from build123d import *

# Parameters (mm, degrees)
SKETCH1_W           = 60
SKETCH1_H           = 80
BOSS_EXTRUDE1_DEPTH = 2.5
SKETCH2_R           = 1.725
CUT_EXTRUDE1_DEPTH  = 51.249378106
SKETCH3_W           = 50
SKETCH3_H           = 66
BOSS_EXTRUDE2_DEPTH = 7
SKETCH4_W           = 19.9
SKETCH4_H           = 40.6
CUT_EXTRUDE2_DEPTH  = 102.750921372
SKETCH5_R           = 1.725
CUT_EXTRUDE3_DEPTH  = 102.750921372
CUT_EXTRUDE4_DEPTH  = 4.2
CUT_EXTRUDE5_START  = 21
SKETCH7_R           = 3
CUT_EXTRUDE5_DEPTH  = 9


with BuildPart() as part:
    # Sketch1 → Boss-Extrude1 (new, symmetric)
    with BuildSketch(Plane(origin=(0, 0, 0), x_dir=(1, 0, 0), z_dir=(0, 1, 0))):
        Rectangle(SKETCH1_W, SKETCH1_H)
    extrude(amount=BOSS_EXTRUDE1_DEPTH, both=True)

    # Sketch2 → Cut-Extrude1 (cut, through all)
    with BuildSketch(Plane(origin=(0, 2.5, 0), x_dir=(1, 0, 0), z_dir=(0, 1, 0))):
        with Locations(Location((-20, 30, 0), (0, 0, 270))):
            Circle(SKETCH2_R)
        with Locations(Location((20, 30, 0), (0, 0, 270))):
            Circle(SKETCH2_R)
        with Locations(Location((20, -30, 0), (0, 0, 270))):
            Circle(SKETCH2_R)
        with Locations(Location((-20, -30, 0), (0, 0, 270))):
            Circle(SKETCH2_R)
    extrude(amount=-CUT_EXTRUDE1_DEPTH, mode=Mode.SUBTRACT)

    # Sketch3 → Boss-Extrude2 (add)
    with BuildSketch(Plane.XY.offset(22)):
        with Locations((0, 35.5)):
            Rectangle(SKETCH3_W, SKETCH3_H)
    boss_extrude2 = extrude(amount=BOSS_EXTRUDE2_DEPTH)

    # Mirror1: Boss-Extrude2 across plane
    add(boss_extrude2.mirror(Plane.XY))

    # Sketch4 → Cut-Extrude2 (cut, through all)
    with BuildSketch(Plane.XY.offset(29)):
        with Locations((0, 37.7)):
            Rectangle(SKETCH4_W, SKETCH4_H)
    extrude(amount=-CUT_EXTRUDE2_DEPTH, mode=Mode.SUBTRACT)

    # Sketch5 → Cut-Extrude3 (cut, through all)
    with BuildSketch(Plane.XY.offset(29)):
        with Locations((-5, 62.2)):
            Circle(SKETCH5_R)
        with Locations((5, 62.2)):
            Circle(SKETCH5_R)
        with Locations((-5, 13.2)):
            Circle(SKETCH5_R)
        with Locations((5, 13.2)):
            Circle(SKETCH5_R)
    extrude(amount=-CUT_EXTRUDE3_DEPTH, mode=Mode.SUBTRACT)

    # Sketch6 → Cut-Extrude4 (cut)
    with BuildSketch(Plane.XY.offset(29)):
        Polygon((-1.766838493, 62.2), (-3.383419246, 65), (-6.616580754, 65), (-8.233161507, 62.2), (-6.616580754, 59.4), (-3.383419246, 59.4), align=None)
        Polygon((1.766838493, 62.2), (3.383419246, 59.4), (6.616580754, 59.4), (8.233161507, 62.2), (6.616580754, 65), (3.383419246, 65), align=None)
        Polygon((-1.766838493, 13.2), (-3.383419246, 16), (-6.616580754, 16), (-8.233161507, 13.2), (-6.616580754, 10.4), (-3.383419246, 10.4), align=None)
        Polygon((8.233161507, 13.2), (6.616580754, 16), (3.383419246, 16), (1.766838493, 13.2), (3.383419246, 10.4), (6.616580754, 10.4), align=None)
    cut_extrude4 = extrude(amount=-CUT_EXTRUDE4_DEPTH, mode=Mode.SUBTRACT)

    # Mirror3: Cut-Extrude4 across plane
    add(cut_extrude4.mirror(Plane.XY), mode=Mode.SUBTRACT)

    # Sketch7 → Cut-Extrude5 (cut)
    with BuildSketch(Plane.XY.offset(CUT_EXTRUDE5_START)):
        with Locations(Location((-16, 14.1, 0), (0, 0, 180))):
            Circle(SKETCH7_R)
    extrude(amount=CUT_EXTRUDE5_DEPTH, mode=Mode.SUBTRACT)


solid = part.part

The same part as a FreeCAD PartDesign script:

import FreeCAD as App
import Part
import Sketcher

V = App.Vector
Q = App.Units.Quantity


def add_polygon(sketch, points):
    """Adds a closed chain of lines whose ends are joined by coincident constraints."""
    first, n = sketch.GeometryCount, len(points)
    for a, b in zip(points, points[1:] + points[:1]):
        sketch.addGeometry(Part.LineSegment(App.Vector(*a, 0), App.Vector(*b, 0)), False)
    for i in range(n):
        sketch.addConstraint(Sketcher.Constraint("Coincident", first + i, 2, first + (i + 1) % n, 1))

doc = App.newDocument("Part")
body = doc.addObject("PartDesign::Body", "Body")

# Sketch on XZ plane
sketch1 = doc.addObject("Sketcher::SketchObject", "Sketch")
body.addObject(sketch1)
sketch1.AttachmentSupport = (doc.XZ_Plane, [""])
sketch1.MapMode = "FlatFace"
add_polygon(sketch1, [(-30, -40), (-30, 40), (30, 40), (30, -40)])  # lines 0-3
sketch1.addConstraint([
    Sketcher.Constraint("Vertical", 0),
    Sketcher.Constraint("Horizontal", 1),
    Sketcher.Constraint("Vertical", 2),
    Sketcher.Constraint("Horizontal", 3),
    Sketcher.Constraint("Symmetric", 0, 2, 2, 2, -1, 1),
    Sketcher.Constraint("DistanceX", 1, 1, 1, 2, 60.0),
    Sketcher.Constraint("DistanceY", 0, 1, 0, 2, 80.0),
])
pad1 = doc.addObject("PartDesign::Pad", "Pad")
body.addObject(pad1)
pad1.Profile = sketch1
pad1.Length = 5
pad1.Midplane = True

# Sketch on XZ plane
sketch2 = doc.addObject("Sketcher::SketchObject", "Sketch001")
body.addObject(sketch2)
sketch2.AttachmentSupport = (doc.XZ_Plane, [""])
sketch2.MapMode = "FlatFace"
sketch2.AttachmentOffset = App.Placement(V(0, 0, -2.5), App.Rotation())
sketch2.addGeometry([
    Part.Circle(V(-20, -30, 0), V(0, 0, 1), 1.7),
    Part.Circle(V(20, -30, 0), V(0, 0, 1), 1.7),
    Part.Circle(V(20, 30, 0), V(0, 0, 1), 1.7),
    Part.Circle(V(-20, 30, 0), V(0, 0, 1), 1.7),
], False)
sketch2.addConstraint([
    Sketcher.Constraint("Equal", 0, 1),
    Sketcher.Constraint("Equal", 1, 2),
    Sketcher.Constraint("Equal", 2, 3),
    Sketcher.Constraint("Symmetric", 0, 3, 2, 3, -1, 1),
    Sketcher.Constraint("Symmetric", 1, 3, 3, 3, -1, 1),
    Sketcher.Constraint("Symmetric", 0, 3, 1, 3, -2),
    Sketcher.Constraint("Diameter", 0, 3.45),
    Sketcher.Constraint("DistanceX", 0, 3, -1, 1, 20.0),
    Sketcher.Constraint("DistanceY", 0, 3, -1, 1, 30.0),
])
pocket1 = doc.addObject("PartDesign::Pocket", "Pocket")
body.addObject(pocket1)
pocket1.Profile = sketch2
pocket1.Type = "ThroughAll"
pocket1.Reversed = True

# Sketch on XY plane
sketch3 = doc.addObject("Sketcher::SketchObject", "Sketch002")
body.addObject(sketch3)
sketch3.AttachmentSupport = (doc.XY_Plane, [""])
sketch3.MapMode = "FlatFace"
sketch3.AttachmentOffset = App.Placement(V(0, 0, 22), App.Rotation())
add_polygon(sketch3, [(-25, 68), (-25, 2), (25, 2), (25, 68)])  # lines 0-3
sketch3.addConstraint([
    Sketcher.Constraint("Vertical", 0),
    Sketcher.Constraint("Horizontal", 1),
    Sketcher.Constraint("Vertical", 2),
    Sketcher.Constraint("Horizontal", 3),
    Sketcher.Constraint("DistanceX", 1, 1, 1, 2, 50.0),
    Sketcher.Constraint("DistanceY", 0, 2, 0, 1, 66.0),
    Sketcher.Constraint("DistanceX", 0, 2, -1, 1, 25.0),
    Sketcher.Constraint("DistanceY", -1, 1, 0, 2, 2.5),
])
pad2 = doc.addObject("PartDesign::Pad", "Pad001")
body.addObject(pad2)
pad2.Profile = sketch3
pad2.Length = 7
doc.recompute()

mirrored = doc.addObject("PartDesign::Mirrored", "Mirrored")
body.addObject(mirrored)
mirrored.Originals = [pad2]
mirrored.MirrorPlane = (doc.XY_Plane, [""])
body.Tip = mirrored

# Sketch on XY plane
sketch4 = doc.addObject("Sketcher::SketchObject", "Sketch003")
body.addObject(sketch4)
sketch4.AttachmentSupport = (doc.XY_Plane, [""])
sketch4.MapMode = "FlatFace"
sketch4.AttachmentOffset = App.Placement(V(0, 0, 29), App.Rotation())
add_polygon(sketch4, [(-10, 58), (-10, 17), (10, 17), (10, 58)])  # lines 0-3
sketch4.addConstraint([
    Sketcher.Constraint("Vertical", 0),
    Sketcher.Constraint("Horizontal", 1),
    Sketcher.Constraint("Vertical", 2),
    Sketcher.Constraint("Horizontal", 3),
    Sketcher.Constraint("DistanceX", 1, 1, 1, 2, 19.9),
    Sketcher.Constraint("DistanceY", 0, 2, 0, 1, 40.6),
    Sketcher.Constraint("DistanceY", -1, 1, 2, 2, 58.0),
    Sketcher.Constraint("DistanceX", 0, 2, -1, 1, 9.95),
])
pocket2 = doc.addObject("PartDesign::Pocket", "Pocket001")
body.addObject(pocket2)
pocket2.Profile = sketch4
pocket2.Type = "ThroughAll"

# Sketch on XY plane
sketch5 = doc.addObject("Sketcher::SketchObject", "Sketch004")
body.addObject(sketch5)
sketch5.AttachmentSupport = (doc.XY_Plane, [""])
sketch5.MapMode = "FlatFace"
sketch5.AttachmentOffset = App.Placement(V(0, 0, 29), App.Rotation())
sketch5.addGeometry([
    Part.Circle(V(-5, 62.2, 0), V(0, 0, 1), 1.7),
    Part.Circle(V(5, 62.2, 0), V(0, 0, 1), 1.7),
    Part.Circle(V(-5, 13.2, 0), V(0, 0, 1), 1.7),
    Part.Circle(V(5, 13.2, 0), V(0, 0, 1), 1.7),
], False)
sketch5.addConstraint([
    Sketcher.Constraint("Equal", 0, 1),
    Sketcher.Constraint("Equal", 1, 2),
    Sketcher.Constraint("Equal", 2, 3),
    Sketcher.Constraint("Symmetric", 0, 3, 1, 3, -2),
    Sketcher.Constraint("Symmetric", 2, 3, 3, 3, -2),
    Sketcher.Constraint("Vertical", 0, 3, 2, 3),
    Sketcher.Constraint("Diameter", 0, 3.45),
    Sketcher.Constraint("DistanceX", 0, 3, -1, 1, 5.0),
    Sketcher.Constraint("DistanceY", 2, 3, 0, 3, 49.0),
    Sketcher.Constraint("DistanceY", -1, 1, 0, 3, 62.2),
])
pocket3 = doc.addObject("PartDesign::Pocket", "Pocket002")
body.addObject(pocket3)
pocket3.Profile = sketch5
pocket3.Type = "ThroughAll"

# Sketch on XY plane
sketch6 = doc.addObject("Sketcher::SketchObject", "Sketch005")
body.addObject(sketch6)
sketch6.AttachmentSupport = (doc.XY_Plane, [""])
sketch6.MapMode = "FlatFace"
sketch6.AttachmentOffset = App.Placement(V(0, 0, 29), App.Rotation())
add_polygon(sketch6, [(-1.8, 62.2), (-3.4, 65), (-6.6, 65), (-8.2, 62.2), (-6.6, 59.4), (-3.4, 59.4)])  # lines 0-5
add_polygon(sketch6, [(1.8, 62.2), (3.4, 59.4), (6.6, 59.4), (8.2, 62.2), (6.6, 65), (3.4, 65)])  # lines 6-11
add_polygon(sketch6, [(-1.8, 13.2), (-3.4, 16), (-6.6, 16), (-8.2, 13.2), (-6.6, 10.4), (-3.4, 10.4)])  # lines 12-17
add_polygon(sketch6, [(8.2, 13.2), (6.6, 16), (3.4, 16), (1.8, 13.2), (3.4, 10.4), (6.6, 10.4)])  # lines 18-23
sketch6.addConstraint([
    Sketcher.Constraint("Horizontal", 1),
    Sketcher.Constraint("Horizontal", 4),
    Sketcher.Constraint("Horizontal", 7),
    Sketcher.Constraint("Horizontal", 10),
    Sketcher.Constraint("Horizontal", 13),
    Sketcher.Constraint("Horizontal", 16),
    Sketcher.Constraint("Horizontal", 19),
    Sketcher.Constraint("Horizontal", 22),
    Sketcher.Constraint("Symmetric", 4, 2, 6, 2, -2),
    Sketcher.Constraint("Symmetric", 2, 2, 8, 2, -2),
    Sketcher.Constraint("Symmetric", 1, 2, 9, 2, -2),
    Sketcher.Constraint("Symmetric", 5, 2, 11, 2, -2),
    Sketcher.Constraint("Symmetric", 13, 2, 18, 2, -2),
    Sketcher.Constraint("Symmetric", 17, 2, 20, 2, -2),
    Sketcher.Constraint("Symmetric", 16, 2, 21, 2, -2),
    Sketcher.Constraint("Symmetric", 14, 2, 23, 2, -2),
    Sketcher.Constraint("Parallel", 0, 3),
    Sketcher.Constraint("Parallel", 2, 5),
    Sketcher.Constraint("Parallel", 3, 6),
    Sketcher.Constraint("Parallel", 5, 8),
    Sketcher.Constraint("Parallel", 8, 11),
    Sketcher.Constraint("Parallel", 9, 12),
    Sketcher.Constraint("Parallel", 11, 14),
    Sketcher.Constraint("Parallel", 12, 15),
    Sketcher.Constraint("Parallel", 14, 17),
    Sketcher.Constraint("Parallel", 17, 20),
    Sketcher.Constraint("Parallel", 20, 23),
    Sketcher.Constraint("Horizontal", 2, 2, 5, 2),
    Sketcher.Constraint("Horizontal", 14, 2, 17, 2),
    Sketcher.Constraint("Vertical", 1, 2, 3, 2),
    Sketcher.Constraint("Vertical", 4, 2, 12, 2),
    Sketcher.Constraint("Vertical", 3, 2, 13, 2),
    Sketcher.Constraint("Vertical", 2, 2, 14, 2),
    Sketcher.Constraint("Vertical", 13, 2, 15, 2),
    Sketcher.Constraint("Angle", 0, Q("120 deg")),
    Sketcher.Constraint("DistanceY", -1, 1, 0, 2, 65.0),
    Sketcher.Constraint("DistanceY", -1, 1, 12, 2, 16.0),
    Sketcher.Constraint("DistanceX", 3, 2, 6, 2, 10.0),
    Sketcher.Constraint("DistanceY", -1, 1, 2, 2, 62.2),
    Sketcher.Constraint("DistanceX", 1, 2, 1, 1, 3.233162),
])
pocket4 = doc.addObject("PartDesign::Pocket", "Pocket003")
body.addObject(pocket4)
pocket4.Profile = sketch6
pocket4.Length = 4.2
doc.recompute()

mirrored2 = doc.addObject("PartDesign::Mirrored", "Mirrored001")
body.addObject(mirrored2)
mirrored2.Originals = [pocket4]
mirrored2.MirrorPlane = (doc.XY_Plane, [""])
body.Tip = mirrored2

# Sketch on XY plane
sketch7 = doc.addObject("Sketcher::SketchObject", "Sketch006")
body.addObject(sketch7)
sketch7.AttachmentSupport = (doc.XY_Plane, [""])
sketch7.MapMode = "FlatFace"
sketch7.AttachmentOffset = App.Placement(V(0, 0, 21), App.Rotation())
sketch7.addGeometry(Part.Circle(V(-16, 14.1, 0), V(0, 0, 1), 3), False)
sketch7.addConstraint([
    Sketcher.Constraint("Diameter", 0, 6.0),
    Sketcher.Constraint("DistanceX", 0, 3, -1, 1, 16.0),
    Sketcher.Constraint("DistanceY", -1, 1, 0, 3, 14.1),
])
pocket5 = doc.addObject("PartDesign::Pocket", "Pocket004")
body.addObject(pocket5)
pocket5.Profile = sketch7
pocket5.Length = 9
pocket5.Reversed = True

doc.recompute()
